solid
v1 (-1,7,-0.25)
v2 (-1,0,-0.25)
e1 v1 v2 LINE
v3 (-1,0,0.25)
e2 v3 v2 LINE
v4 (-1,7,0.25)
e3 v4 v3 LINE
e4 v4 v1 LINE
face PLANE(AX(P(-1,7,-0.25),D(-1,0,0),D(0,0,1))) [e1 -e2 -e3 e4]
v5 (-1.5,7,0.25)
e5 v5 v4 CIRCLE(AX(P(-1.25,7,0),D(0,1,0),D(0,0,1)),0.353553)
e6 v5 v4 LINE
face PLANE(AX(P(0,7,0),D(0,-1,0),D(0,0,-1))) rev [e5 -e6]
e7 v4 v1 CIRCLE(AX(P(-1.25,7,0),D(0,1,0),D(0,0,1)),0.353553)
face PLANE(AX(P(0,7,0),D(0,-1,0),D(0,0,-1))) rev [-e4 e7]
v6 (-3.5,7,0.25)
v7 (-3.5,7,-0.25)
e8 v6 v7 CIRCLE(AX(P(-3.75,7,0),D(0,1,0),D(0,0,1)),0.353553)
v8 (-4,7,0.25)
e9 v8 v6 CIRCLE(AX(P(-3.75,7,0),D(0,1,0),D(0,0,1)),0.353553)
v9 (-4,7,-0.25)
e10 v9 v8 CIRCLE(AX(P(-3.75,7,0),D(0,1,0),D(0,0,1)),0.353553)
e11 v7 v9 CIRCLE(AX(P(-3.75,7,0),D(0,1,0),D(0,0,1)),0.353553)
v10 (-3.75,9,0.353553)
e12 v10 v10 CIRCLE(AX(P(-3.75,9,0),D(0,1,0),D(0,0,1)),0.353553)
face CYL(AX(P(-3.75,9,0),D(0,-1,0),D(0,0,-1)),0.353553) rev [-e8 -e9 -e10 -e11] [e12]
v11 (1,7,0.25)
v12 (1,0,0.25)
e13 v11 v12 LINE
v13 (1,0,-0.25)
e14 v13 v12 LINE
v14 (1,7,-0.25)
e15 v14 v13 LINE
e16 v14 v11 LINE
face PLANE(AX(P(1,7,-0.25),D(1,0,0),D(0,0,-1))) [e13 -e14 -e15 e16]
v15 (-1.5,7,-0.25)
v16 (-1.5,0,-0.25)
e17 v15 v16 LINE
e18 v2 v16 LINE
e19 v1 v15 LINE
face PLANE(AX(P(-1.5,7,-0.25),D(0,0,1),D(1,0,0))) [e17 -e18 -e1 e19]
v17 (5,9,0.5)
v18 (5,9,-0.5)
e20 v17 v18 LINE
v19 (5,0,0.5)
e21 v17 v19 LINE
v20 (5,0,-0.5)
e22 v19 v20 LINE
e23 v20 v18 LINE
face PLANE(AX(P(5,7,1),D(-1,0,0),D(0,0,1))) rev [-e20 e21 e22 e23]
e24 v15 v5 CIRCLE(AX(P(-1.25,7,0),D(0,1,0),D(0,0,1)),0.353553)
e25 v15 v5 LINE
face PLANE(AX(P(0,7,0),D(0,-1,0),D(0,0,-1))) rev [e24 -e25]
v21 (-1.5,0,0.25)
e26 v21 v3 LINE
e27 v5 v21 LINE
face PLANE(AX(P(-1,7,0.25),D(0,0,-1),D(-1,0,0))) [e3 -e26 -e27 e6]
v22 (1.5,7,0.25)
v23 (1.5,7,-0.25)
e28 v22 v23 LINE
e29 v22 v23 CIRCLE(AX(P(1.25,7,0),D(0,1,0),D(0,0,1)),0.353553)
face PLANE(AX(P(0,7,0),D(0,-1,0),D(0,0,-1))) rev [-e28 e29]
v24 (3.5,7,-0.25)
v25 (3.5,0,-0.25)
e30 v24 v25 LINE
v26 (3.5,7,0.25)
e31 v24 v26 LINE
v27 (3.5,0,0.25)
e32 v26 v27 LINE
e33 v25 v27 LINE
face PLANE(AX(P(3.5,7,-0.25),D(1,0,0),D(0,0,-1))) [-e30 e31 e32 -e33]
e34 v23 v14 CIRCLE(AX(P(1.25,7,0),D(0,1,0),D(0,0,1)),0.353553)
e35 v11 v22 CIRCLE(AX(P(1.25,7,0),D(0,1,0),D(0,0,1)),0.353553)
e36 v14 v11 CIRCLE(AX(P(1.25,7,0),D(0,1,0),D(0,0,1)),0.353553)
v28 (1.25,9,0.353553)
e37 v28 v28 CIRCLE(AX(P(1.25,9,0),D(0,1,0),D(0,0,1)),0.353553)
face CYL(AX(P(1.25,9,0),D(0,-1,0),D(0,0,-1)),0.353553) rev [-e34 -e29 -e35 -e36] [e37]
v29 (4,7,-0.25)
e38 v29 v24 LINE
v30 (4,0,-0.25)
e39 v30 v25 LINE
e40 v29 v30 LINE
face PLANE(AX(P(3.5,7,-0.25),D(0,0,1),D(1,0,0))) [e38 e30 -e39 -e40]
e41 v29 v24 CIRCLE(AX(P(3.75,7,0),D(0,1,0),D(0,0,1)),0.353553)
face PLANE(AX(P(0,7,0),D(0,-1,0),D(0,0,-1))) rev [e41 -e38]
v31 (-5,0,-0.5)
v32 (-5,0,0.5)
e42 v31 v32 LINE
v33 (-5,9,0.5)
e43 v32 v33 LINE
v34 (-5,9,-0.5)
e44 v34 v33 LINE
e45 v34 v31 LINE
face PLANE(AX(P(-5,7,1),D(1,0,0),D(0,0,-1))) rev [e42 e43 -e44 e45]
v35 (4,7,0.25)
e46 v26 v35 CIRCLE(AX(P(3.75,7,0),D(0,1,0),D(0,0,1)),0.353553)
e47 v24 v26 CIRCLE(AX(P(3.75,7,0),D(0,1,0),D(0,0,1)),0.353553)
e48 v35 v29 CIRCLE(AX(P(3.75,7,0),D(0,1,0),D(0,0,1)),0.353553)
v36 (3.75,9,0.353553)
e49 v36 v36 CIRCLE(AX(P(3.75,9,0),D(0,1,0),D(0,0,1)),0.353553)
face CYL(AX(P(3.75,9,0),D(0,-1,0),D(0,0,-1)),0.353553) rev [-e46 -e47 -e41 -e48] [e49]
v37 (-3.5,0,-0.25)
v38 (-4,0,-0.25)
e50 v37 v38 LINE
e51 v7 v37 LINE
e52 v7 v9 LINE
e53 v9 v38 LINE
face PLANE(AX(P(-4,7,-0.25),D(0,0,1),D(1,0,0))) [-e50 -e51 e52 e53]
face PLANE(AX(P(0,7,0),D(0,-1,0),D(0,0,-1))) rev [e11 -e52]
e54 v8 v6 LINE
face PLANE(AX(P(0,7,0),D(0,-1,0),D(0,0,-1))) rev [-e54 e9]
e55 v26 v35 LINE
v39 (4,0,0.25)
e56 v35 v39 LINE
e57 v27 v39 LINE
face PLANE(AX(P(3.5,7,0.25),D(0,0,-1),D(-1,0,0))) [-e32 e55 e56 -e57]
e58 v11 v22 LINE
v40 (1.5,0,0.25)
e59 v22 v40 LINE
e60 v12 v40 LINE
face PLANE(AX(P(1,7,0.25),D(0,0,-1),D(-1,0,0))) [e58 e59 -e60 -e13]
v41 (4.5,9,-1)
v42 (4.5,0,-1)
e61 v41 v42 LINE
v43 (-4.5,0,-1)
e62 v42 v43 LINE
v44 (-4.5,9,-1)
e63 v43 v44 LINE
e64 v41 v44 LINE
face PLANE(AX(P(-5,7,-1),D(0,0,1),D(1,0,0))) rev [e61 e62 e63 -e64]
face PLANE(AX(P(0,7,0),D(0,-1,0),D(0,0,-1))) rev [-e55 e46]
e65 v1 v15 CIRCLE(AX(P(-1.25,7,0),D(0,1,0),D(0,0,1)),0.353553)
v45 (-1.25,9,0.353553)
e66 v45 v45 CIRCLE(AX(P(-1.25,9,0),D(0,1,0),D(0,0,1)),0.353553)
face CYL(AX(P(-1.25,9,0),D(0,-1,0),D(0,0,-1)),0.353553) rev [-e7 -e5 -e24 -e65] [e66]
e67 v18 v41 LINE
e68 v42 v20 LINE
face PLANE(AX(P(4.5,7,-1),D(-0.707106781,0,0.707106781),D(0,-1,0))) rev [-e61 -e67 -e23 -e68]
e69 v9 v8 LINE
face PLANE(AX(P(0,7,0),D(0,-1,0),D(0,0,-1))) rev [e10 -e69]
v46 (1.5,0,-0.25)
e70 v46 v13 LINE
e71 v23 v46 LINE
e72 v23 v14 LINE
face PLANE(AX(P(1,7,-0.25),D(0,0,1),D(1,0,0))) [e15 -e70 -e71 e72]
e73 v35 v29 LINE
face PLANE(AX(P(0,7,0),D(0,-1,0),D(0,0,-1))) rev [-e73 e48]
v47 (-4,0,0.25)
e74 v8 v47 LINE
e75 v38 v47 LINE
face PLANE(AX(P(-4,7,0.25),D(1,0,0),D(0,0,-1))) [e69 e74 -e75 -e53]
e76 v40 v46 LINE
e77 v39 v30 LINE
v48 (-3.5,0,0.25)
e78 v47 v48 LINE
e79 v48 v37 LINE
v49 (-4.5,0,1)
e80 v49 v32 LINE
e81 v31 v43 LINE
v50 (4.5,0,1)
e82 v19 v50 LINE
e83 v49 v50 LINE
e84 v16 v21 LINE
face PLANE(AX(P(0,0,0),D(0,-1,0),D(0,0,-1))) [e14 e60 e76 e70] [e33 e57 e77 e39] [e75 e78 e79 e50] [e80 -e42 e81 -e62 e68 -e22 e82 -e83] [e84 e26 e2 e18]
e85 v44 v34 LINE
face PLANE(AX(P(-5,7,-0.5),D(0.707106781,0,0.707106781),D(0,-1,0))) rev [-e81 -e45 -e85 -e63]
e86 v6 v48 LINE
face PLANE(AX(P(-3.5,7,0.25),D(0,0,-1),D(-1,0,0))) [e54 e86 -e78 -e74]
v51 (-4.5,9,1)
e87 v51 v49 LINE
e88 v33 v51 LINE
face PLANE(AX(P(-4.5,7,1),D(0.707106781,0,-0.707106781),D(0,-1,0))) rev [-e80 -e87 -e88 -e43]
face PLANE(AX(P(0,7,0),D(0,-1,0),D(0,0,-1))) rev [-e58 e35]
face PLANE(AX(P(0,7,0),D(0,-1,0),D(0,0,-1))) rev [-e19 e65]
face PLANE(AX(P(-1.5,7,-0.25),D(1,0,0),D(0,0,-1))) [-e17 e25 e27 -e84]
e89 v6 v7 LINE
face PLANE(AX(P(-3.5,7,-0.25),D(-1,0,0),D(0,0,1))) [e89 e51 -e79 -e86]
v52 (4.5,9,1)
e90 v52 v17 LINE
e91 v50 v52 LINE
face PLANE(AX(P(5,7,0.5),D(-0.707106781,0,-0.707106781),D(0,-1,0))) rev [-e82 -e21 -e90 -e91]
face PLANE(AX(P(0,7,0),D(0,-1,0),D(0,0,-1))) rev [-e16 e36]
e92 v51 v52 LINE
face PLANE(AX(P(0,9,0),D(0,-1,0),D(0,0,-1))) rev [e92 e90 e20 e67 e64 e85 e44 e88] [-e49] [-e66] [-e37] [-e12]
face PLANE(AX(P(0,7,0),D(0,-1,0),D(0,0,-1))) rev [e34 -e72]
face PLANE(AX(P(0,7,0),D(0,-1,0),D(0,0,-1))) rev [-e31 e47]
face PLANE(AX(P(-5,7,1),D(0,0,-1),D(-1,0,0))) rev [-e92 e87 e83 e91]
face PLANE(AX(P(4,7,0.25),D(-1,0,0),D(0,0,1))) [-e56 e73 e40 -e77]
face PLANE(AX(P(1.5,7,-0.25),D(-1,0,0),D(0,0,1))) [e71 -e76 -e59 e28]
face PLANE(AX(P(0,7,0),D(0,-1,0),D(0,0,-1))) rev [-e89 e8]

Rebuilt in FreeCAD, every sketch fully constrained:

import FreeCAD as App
import Part
import Sketcher

V = App.Vector


def edges_at(feature, points):
    """Names of the edges that pass closest to the given points."""
    edges = feature.Shape.Edges
    near = lambda p: min(range(len(edges)), key=lambda i: edges[i].distToShape(Part.Vertex(*p))[0])
    return sorted({f"Edge{near(p) + 1}" for p in points})


def add_polygon(sketch, points):
    """Adds a closed chain of lines whose ends are joined by coincident constraints."""
    first, n = sketch.GeometryCount, len(points)
    for a, b in zip(points, points[1:] + points[:1]):
        sketch.addGeometry(Part.LineSegment(App.Vector(*a, 0), App.Vector(*b, 0)), False)
    for i in range(n):
        sketch.addConstraint(Sketcher.Constraint("Coincident", first + i, 2, first + (i + 1) % n, 1))

doc = App.newDocument("Part")
body = doc.addObject("PartDesign::Body", "Body")

# Sketch on XZ plane
sketch1 = body.newObject("Sketcher::SketchObject", "Sketch")
sketch1.AttachmentSupport = (doc.getObject("XZ_Plane"), [""])
sketch1.MapMode = "FlatFace"
add_polygon(sketch1, [(-5, -1), (-5, 1), (5, 1), (5, -1)])  # lines 0-3
add_polygon(sketch1, [(-3.5, 0.2), (-4, 0.2), (-4, -0.2), (-3.5, -0.2)])  # lines 4-7
add_polygon(sketch1, [(-1, 0.2), (-1.5, 0.2), (-1.5, -0.2), (-1, -0.2)])  # lines 8-11
add_polygon(sketch1, [(1.5, 0.2), (1, 0.2), (1, -0.2), (1.5, -0.2)])  # lines 12-15
add_polygon(sketch1, [(4, 0.2), (3.5, 0.2), (3.5, -0.2), (4, -0.2)])  # lines 16-19
sketch1.addConstraint([
    Sketcher.Constraint("Vertical", 0),
    Sketcher.Constraint("Horizontal", 1),
    Sketcher.Constraint("Vertical", 2),
    Sketcher.Constraint("Horizontal", 3),
    Sketcher.Constraint("Horizontal", 4),
    Sketcher.Constraint("Vertical", 5),
    Sketcher.Constraint("Horizontal", 6),
    Sketcher.Constraint("Vertical", 7),
    Sketcher.Constraint("Horizontal", 8),
    Sketcher.Constraint("Vertical", 9),
    Sketcher.Constraint("Horizontal", 10),
    Sketcher.Constraint("Vertical", 11),
    Sketcher.Constraint("Horizontal", 12),
    Sketcher.Constraint("Vertical", 13),
    Sketcher.Constraint("Horizontal", 14),
    Sketcher.Constraint("Vertical", 15),
    Sketcher.Constraint("Horizontal", 16),
    Sketcher.Constraint("Vertical", 17),
    Sketcher.Constraint("Horizontal", 18),
    Sketcher.Constraint("Vertical", 19),
    Sketcher.Constraint("Symmetric", 0, 2, 2, 2, -1, 1),
    Sketcher.Constraint("Symmetric", 10, 2, 12, 2, -1, 1),
    Sketcher.Constraint("Symmetric", 8, 2, 14, 2, -1, 1),
    Sketcher.Constraint("Symmetric", 6, 2, 16, 2, -1, 1),
    Sketcher.Constraint("Symmetric", 4, 2, 18, 2, -1, 1),
    Sketcher.Constraint("Horizontal", 7, 2, 8, 2),
    Sketcher.Constraint("Horizontal", 6, 2, 9, 2),
    Sketcher.Constraint("Horizontal", 11, 2, 12, 2),
    Sketcher.Constraint("Equal", 6, 8),
    Sketcher.Constraint("Equal", 18, 5),
    Sketcher.Constraint("DistanceX", 1, 1, 1, 2, 10.0),
    Sketcher.Constraint("DistanceY", 0, 1, 0, 2, 2.0),
    Sketcher.Constraint("DistanceX", 4, 2, 4, 1, 0.5),
    Sketcher.Constraint("DistanceX", 4, 2, -1, 1, 4.0),
    Sketcher.Constraint("DistanceX", 10, 2, -1, 1, 1.0),
])
pad1 = body.newObject("PartDesign::Pad", "Pad")
pad1.Profile = sketch1
pad1.Length = 7
pad1.Reversed = True

# Sketch on XZ plane
sketch2 = body.newObject("Sketcher::SketchObject", "Sketch001")
sketch2.AttachmentSupport = (doc.getObject("XZ_Plane"), [""])
sketch2.MapMode = "FlatFace"
sketch2.AttachmentOffset = App.Placement(V(0, 0, -7), App.Rotation())
add_polygon(sketch2, [(-5, -1), (-5, 1), (5, 1), (5, -1)])  # lines 0-3
sketch2.addGeometry(Part.Circle(V(-3.75, 0, 0), V(0, 0, 1), 0.35), False)  # 4
sketch2.addGeometry(Part.Circle(V(-1.25, 0, 0), V(0, 0, 1), 0.35), False)  # 5
sketch2.addGeometry(Part.Circle(V(1.25, 0, 0), V(0, 0, 1), 0.35), False)  # 6
sketch2.addGeometry(Part.Circle(V(3.75, 0, 0), V(0, 0, 1), 0.35), False)  # 7
sketch2.addConstraint([
    Sketcher.Constraint("Vertical", 0),
    Sketcher.Constraint("Horizontal", 1),
    Sketcher.Constraint("Vertical", 2),
    Sketcher.Constraint("Horizontal", 3),
    Sketcher.Constraint("Equal", 4, 5),
    Sketcher.Constraint("Equal", 5, 6),
    Sketcher.Constraint("Equal", 6, 7),
    Sketcher.Constraint("Symmetric", 5, 3, 6, 3, -1, 1),
    Sketcher.Constraint("Symmetric", 4, 3, 7, 3, -1, 1),
    Sketcher.Constraint("Symmetric", 0, 2, 2, 2, -1, 1),
    Sketcher.Constraint("PointOnObject", 4, 3, -1),
    Sketcher.Constraint("PointOnObject", 5, 3, -1),
    Sketcher.Constraint("DistanceX", 1, 1, 1, 2, 10.0),
    Sketcher.Constraint("DistanceY", 0, 1, 0, 2, 2.0),
    Sketcher.Constraint("DistanceX", 4, 3, 6, 3, 5.0),
    Sketcher.Constraint("DistanceX", 4, 3, 5, 3, 2.5),
    Sketcher.Constraint("Diameter", 4, 0.707107),
])
pad2 = body.newObject("PartDesign::Pad", "Pad001")
pad2.Profile = sketch2
pad2.Length = 2
pad2.Reversed = True
doc.recompute()

chamfer = body.newObject("PartDesign::Chamfer", "Chamfer")
chamfer.Base = (pad2, edges_at(pad2, [
    (5, 4.5, 1),
    (-5, 4.5, 1),
    (-5, 4.5, -1),
    (5, 4.5, -1),
]))
chamfer.Size = 0.5

doc.recompute()
